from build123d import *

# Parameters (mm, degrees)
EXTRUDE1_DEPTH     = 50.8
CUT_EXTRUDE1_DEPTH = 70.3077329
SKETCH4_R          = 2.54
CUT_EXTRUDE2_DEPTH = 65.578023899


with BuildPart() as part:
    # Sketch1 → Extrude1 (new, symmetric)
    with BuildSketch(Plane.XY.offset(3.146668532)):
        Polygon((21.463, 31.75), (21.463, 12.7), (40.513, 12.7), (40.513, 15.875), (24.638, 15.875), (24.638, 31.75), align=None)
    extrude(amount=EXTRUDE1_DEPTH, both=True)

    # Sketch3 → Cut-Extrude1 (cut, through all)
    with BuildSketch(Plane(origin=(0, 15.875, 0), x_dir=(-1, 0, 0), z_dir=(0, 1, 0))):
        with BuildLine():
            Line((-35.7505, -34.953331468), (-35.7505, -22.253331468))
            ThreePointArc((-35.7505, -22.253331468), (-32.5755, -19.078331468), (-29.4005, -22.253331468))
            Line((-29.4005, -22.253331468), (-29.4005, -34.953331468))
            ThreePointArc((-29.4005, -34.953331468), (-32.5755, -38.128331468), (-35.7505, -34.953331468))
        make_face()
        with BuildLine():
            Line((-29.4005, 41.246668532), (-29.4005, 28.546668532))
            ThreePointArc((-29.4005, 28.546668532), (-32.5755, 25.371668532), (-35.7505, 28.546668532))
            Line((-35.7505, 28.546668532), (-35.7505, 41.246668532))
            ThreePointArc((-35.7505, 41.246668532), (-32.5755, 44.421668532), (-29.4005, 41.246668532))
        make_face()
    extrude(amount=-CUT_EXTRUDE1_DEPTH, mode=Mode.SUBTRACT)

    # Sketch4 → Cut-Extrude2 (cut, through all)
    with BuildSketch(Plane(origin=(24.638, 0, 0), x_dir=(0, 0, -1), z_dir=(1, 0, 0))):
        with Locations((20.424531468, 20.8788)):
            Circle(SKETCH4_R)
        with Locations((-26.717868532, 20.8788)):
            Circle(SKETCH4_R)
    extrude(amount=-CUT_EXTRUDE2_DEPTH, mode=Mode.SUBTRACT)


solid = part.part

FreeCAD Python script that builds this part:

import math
import FreeCAD as App
import Part
import Sketcher

V = App.Vector
Q = App.Units.Quantity


def add_polygon(sketch, points):
    """Adds a closed chain of lines whose ends are joined by coincident constraints."""
    first, n = sketch.GeometryCount, len(points)
    for a, b in zip(points, points[1:] + points[:1]):
        sketch.addGeometry(Part.LineSegment(App.Vector(*a, 0), App.Vector(*b, 0)), False)
    for i in range(n):
        sketch.addConstraint(Sketcher.Constraint("Coincident", first + i, 2, first + (i + 1) % n, 1))

doc = App.newDocument("Part")
body = doc.addObject("PartDesign::Body", "Body")

sketch1 = doc.addObject("Sketcher::SketchObject", "Sketch")
body.addObject(sketch1)
sketch1.AttachmentSupport = (doc.XY_Plane, [""])
sketch1.MapMode = "FlatFace"
sketch1.AttachmentOffset = App.Placement(V(0, 0, 3.146669), App.Rotation())
add_polygon(sketch1, [(21.463, 31.75), (21.463, 12.7), (40.513, 12.7), (40.513, 15.875), (24.638, 15.875), (24.638, 31.75)])
sketch1.addConstraint([
    Sketcher.Constraint("Vertical", 0),
    Sketcher.Constraint("Horizontal", 1),
    Sketcher.Constraint("Vertical", 2),
    Sketcher.Constraint("Horizontal", 3),
    Sketcher.Constraint("Vertical", 4),
    Sketcher.Constraint("Horizontal", 5),
    Sketcher.Constraint("Equal", 1, 0),
    Sketcher.Constraint("Equal", 5, 2),
    Sketcher.Constraint("DistanceX", 1, 1, 1, 2, Q("0.75 in")),
    Sketcher.Constraint("DistanceY", -1, 1, 0, 2, Q("0.5 in")),
    Sketcher.Constraint("DistanceX", 3, 2, 3, 1, Q("0.625 in")),
    Sketcher.Constraint("DistanceX", -1, 1, 3, 2, Q("0.97 in")),
])
pad1 = doc.addObject("PartDesign::Pad", "Pad")
body.addObject(pad1)
pad1.Profile = sketch1
pad1.Length = Q("4 in")
pad1.Midplane = True

sketch2 = doc.addObject("Sketcher::SketchObject", "Sketch001")
body.addObject(sketch2)
sketch2.AttachmentSupport = (doc.XZ_Plane, [""])
sketch2.MapMode = "FlatFace"
sketch2.AttachmentOffset = App.Placement(V(0, 0, -0.625 * 25.4), App.Rotation())
sketch2.addGeometry([
    Part.LineSegment(V(35.7505, -22.253331, 0), V(35.7505, -34.953331, 0)),
    Part.ArcOfCircle(Part.Circle(V(32.5755, -34.953331, 0), V(0, 0, 1), 3.175), math.radians(180), math.radians(360)),
    Part.LineSegment(V(29.4005, -34.953331, 0), V(29.4005, -22.253331, 0)),
    Part.ArcOfCircle(Part.Circle(V(32.5755, -22.253331, 0), V(0, 0, 1), 3.175), math.radians(0), math.radians(180)),
    Part.LineSegment(V(29.4005, 28.546669, 0), V(29.4005, 41.246669, 0)),
    Part.ArcOfCircle(Part.Circle(V(32.5755, 41.246669, 0), V(0, 0, 1), 3.175), math.radians(0), math.radians(180)),
    Part.LineSegment(V(35.7505, 41.246669, 0), V(35.7505, 28.546669, 0)),
    Part.ArcOfCircle(Part.Circle(V(32.5755, 28.546669, 0), V(0, 0, 1), 3.175), math.radians(180), math.radians(360)),
], False)
sketch2.addConstraint([
    Sketcher.Constraint("Tangent", 0, 2, 1, 2),
    Sketcher.Constraint("Tangent", 1, 1, 2, 1),
    Sketcher.Constraint("Tangent", 2, 2, 3, 2),
    Sketcher.Constraint("Tangent", 3, 1, 0, 1),
    Sketcher.Constraint("Tangent", 4, 2, 5, 2),
    Sketcher.Constraint("Tangent", 5, 1, 6, 1),
    Sketcher.Constraint("Tangent", 6, 2, 7, 2),
    Sketcher.Constraint("Tangent", 7, 1, 4, 1),
    Sketcher.Constraint("Vertical", 0),
    Sketcher.Constraint("Vertical", 2),
    Sketcher.Constraint("Vertical", 4),
    Sketcher.Constraint("Vertical", 6),
    Sketcher.Constraint("Equal", 3, 5),
    Sketcher.Constraint("Vertical", 3, 3, 5, 3),
    Sketcher.Constraint("Equal", 2, 4),
    Sketcher.Constraint("DistanceY", 0, 2, 0, 1, Q("0.5 in")),
    Sketcher.Constraint("Radius", 1, Q("0.125 in")),
    Sketcher.Constraint("DistanceY", 1, 3, 5, 3, Q("3 in")),
    Sketcher.Constraint("DistanceX", -1, 1, 1, 3, Q("1.2825 in")),
    Sketcher.Constraint("DistanceY", 1, 3, -1, 1, 34.953331),
])
pocket1 = doc.addObject("PartDesign::Pocket", "Pocket")
body.addObject(pocket1)
pocket1.Profile = sketch2
pocket1.Type = "ThroughAll"
pocket1.Reversed = True

sketch3 = doc.addObject("Sketcher::SketchObject", "Sketch002")
body.addObject(sketch3)
sketch3.AttachmentSupport = (doc.YZ_Plane, [""])
sketch3.MapMode = "FlatFace"
sketch3.AttachmentOffset = App.Placement(V(0, 0, 0.97 * 25.4), App.Rotation())
sketch3.addGeometry([
    Part.Circle(V(20.8788, -20.424531, 0), V(0, 0, 1), 2.54),
    Part.Circle(V(20.8788, 26.717869, 0), V(0, 0, 1), 2.54),
], False)
sketch3.addConstraint([
    Sketcher.Constraint("Equal", 0, 1),
    Sketcher.Constraint("Vertical", 0, 3, 1, 3),
    Sketcher.Constraint("Diameter", 0, Q("0.2 in")),
    Sketcher.Constraint("DistanceX", -1, 1, 0, 3, Q("0.822 in")),
    Sketcher.Constraint("DistanceY", 0, 3, 1, 3, Q("1.856 in")),
    Sketcher.Constraint("DistanceY", 0, 3, -1, 1, 20.424531),
])
pocket2 = doc.addObject("PartDesign::Pocket", "Pocket001")
body.addObject(pocket2)
pocket2.Profile = sketch3
pocket2.Type = "ThroughAll"

doc.recompute()
